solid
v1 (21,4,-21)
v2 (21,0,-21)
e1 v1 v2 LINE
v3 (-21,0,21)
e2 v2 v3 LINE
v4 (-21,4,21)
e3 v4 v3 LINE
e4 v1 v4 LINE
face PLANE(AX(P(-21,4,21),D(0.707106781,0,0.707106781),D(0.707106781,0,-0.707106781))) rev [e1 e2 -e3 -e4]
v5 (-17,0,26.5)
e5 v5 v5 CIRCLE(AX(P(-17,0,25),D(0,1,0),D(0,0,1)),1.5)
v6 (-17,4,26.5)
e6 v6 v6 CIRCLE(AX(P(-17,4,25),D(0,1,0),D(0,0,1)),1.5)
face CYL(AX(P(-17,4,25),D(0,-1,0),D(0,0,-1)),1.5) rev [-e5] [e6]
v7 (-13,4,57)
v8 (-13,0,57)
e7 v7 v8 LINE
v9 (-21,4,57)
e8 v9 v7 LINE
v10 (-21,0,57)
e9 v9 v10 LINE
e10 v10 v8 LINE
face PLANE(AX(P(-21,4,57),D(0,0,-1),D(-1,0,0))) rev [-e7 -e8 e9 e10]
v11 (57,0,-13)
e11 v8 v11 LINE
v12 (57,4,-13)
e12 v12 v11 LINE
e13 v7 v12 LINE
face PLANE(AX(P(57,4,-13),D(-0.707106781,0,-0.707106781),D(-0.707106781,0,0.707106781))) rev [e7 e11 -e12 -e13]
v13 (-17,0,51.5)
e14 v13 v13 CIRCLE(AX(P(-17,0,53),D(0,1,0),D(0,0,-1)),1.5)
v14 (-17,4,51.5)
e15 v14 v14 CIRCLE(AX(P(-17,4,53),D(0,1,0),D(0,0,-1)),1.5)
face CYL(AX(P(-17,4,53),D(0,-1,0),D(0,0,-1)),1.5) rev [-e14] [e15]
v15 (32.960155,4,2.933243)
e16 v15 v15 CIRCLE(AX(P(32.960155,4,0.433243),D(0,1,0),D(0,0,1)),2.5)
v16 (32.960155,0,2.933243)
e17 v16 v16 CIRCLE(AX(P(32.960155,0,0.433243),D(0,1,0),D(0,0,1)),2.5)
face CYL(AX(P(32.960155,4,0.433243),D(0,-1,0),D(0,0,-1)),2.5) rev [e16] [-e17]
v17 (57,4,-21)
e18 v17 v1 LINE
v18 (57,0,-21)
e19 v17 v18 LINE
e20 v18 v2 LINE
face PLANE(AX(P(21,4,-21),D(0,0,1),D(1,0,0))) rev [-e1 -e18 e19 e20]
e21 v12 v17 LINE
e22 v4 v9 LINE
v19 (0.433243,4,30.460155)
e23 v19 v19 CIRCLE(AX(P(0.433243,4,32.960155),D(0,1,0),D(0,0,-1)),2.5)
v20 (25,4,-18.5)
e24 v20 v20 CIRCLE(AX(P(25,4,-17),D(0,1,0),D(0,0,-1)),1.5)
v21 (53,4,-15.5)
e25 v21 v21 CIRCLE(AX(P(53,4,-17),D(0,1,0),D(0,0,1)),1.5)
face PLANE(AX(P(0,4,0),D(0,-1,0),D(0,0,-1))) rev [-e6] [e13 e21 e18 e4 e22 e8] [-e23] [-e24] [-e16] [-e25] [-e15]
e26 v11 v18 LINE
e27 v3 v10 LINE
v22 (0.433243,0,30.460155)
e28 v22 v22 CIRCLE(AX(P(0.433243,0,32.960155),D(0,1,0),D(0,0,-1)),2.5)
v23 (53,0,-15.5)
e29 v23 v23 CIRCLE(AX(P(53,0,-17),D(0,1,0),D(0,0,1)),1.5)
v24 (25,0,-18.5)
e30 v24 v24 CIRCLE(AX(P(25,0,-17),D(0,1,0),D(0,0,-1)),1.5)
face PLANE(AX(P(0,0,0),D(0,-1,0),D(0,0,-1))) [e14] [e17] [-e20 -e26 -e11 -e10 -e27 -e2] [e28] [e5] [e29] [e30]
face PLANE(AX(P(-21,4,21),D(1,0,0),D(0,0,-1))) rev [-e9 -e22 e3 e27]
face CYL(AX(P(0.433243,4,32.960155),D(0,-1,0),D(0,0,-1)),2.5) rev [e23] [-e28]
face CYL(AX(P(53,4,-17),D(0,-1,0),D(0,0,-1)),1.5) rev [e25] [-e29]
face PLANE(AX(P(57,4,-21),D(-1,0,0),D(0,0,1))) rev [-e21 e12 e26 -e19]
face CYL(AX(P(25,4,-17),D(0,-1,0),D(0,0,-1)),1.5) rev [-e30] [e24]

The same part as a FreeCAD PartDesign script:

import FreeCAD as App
import Part
import Sketcher
Q = App.Units.Quantity


def add_polygon(sketch, points):
    """Adds a closed chain of lines whose ends are joined by coincident constraints."""
    first, n = sketch.GeometryCount, len(points)
    for a, b in zip(points, points[1:] + points[:1]):
        sketch.addGeometry(Part.LineSegment(App.Vector(*a, 0), App.Vector(*b, 0)), False)
    for i in range(n):
        sketch.addConstraint(Sketcher.Constraint("Coincident", first + i, 2, first + (i + 1) % n, 1))

doc = App.newDocument("Part")
params = doc.addObject("Spreadsheet::Sheet", "Params")
for row, (alias, value) in enumerate([
    ("sketch1_diameter", "3 mm"),
    ("sketch1_diameter2", "5 mm"),
    ("sketch1_width", "8 mm"),
    ("sketch1_width2", "36 mm"),
    ("pad1_length", "4 mm"),
], start=1):
    params.set(f"A{row}", alias)
    params.set(f"B{row}", "=" + value)
    params.setAlias(f"B{row}", alias)

body = doc.addObject("PartDesign::Body", "Body")

# Sketch on XZ plane
sketch1 = body.newObject("Sketcher::SketchObject", "Sketch")
sketch1.AttachmentSupport = (doc.getObject("XZ_Plane"), [""])
sketch1.MapMode = "FlatFace"
add_polygon(sketch1, [(21, -21), (-21, 21), (-21, 57), (-13, 57), (57, -13), (57, -21)])  # lines 0-5
sketch1.addGeometry(Part.Circle(App.Vector(-17, 53, 0), App.Vector(0, 0, 1), 1.5), False)  # 6
sketch1.addGeometry(Part.Circle(App.Vector(0.4, 33, 0), App.Vector(0, 0, 1), 2.5), False)  # 7
sketch1.addGeometry(Part.Circle(App.Vector(-17, 25, 0), App.Vector(0, 0, 1), 1.5), False)  # 8
sketch1.addGeometry(Part.Circle(App.Vector(33, 0.4, 0), App.Vector(0, 0, 1), 2.5), False)  # 9
sketch1.addGeometry(Part.Circle(App.Vector(53, -17, 0), App.Vector(0, 0, 1), 1.5), False)  # 10
sketch1.addGeometry(Part.Circle(App.Vector(25, -17, 0), App.Vector(0, 0, 1), 1.5), False)  # 11
sketch1.addConstraint(Sketcher.Constraint("Vertical", 1))
sketch1.addConstraint(Sketcher.Constraint("Horizontal", 2))
sketch1.addConstraint(Sketcher.Constraint("Vertical", 4))
sketch1.addConstraint(Sketcher.Constraint("Horizontal", 5))
sketch1.addConstraint(Sketcher.Constraint("Equal", 6, 8))
sketch1.addConstraint(Sketcher.Constraint("Equal", 7, 9))
sketch1.addConstraint(Sketcher.Constraint("Equal", 8, 10))
sketch1.addConstraint(Sketcher.Constraint("Equal", 10, 11))
sketch1.addConstraint(Sketcher.Constraint("Symmetric", 0, 2, 5, 2, -1, 1))
sketch1.addConstraint(Sketcher.Constraint("Parallel", 0, 3))
sketch1.addConstraint(Sketcher.Constraint("Horizontal", 10, 3, 11, 3))
sketch1.addConstraint(Sketcher.Constraint("Vertical", 6, 3, 8, 3))
sketch1.addConstraint(Sketcher.Constraint("Equal", 5, 1))
sketch1.addConstraint(Sketcher.Constraint("Equal", 2, 4))
sketch1.addConstraint(Sketcher.Constraint("Diameter", 6, Q("3 mm")))
sketch1.addConstraint(Sketcher.Constraint("Diameter", 7, Q("5 mm")))
sketch1.addConstraint(Sketcher.Constraint("DistanceX", 2, 1, 2, 2, Q("8 mm")))
sketch1.addConstraint(Sketcher.Constraint("DistanceX", 5, 2, 5, 1, Q("36 mm")))
sketch1.addConstraint(Sketcher.Constraint("DistanceX", 6, 3, -1, 1, Q("17 mm")))
sketch1.addConstraint(Sketcher.Constraint("DistanceY", -1, 1, 6, 3, Q("53 mm")))
sketch1.addConstraint(Sketcher.Constraint("DistanceY", -1, 1, 8, 3, Q("25 mm")))
sketch1.addConstraint(Sketcher.Constraint("DistanceX", -1, 1, 10, 3, Q("53 mm")))
sketch1.addConstraint(Sketcher.Constraint("DistanceY", 10, 3, -1, 1, Q("17 mm")))
sketch1.addConstraint(Sketcher.Constraint("DistanceX", -1, 1, 11, 3, Q("25 mm")))
sketch1.addConstraint(Sketcher.Constraint("DistanceX", 0, 2, -1, 1, Q("21 mm")))
sketch1.addConstraint(Sketcher.Constraint("DistanceX", 7, 3, 9, 3, Q("32.526912 mm")))
sketch1.addConstraint(Sketcher.Constraint("DistanceY", 9, 3, 7, 3, Q("32.526912 mm")))
sketch1.addConstraint(Sketcher.Constraint("DistanceX", -1, 1, 7, 3, Q("0.433243 mm")))
sketch1.addConstraint(Sketcher.Constraint("DistanceY", -1, 1, 7, 3, Q("32.960155 mm")))
sketch1.setExpression("Constraints[20]", "Params.sketch1_diameter")
sketch1.setExpression("Constraints[21]", "Params.sketch1_diameter2")
sketch1.setExpression("Constraints[22]", "Params.sketch1_width")
sketch1.setExpression("Constraints[23]", "Params.sketch1_width2")
pad1 = body.newObject("PartDesign::Pad", "Pad")
pad1.Profile = sketch1
pad1.setExpression("Length", "Params.pad1_length")
pad1.Reversed = True

doc.recompute()
